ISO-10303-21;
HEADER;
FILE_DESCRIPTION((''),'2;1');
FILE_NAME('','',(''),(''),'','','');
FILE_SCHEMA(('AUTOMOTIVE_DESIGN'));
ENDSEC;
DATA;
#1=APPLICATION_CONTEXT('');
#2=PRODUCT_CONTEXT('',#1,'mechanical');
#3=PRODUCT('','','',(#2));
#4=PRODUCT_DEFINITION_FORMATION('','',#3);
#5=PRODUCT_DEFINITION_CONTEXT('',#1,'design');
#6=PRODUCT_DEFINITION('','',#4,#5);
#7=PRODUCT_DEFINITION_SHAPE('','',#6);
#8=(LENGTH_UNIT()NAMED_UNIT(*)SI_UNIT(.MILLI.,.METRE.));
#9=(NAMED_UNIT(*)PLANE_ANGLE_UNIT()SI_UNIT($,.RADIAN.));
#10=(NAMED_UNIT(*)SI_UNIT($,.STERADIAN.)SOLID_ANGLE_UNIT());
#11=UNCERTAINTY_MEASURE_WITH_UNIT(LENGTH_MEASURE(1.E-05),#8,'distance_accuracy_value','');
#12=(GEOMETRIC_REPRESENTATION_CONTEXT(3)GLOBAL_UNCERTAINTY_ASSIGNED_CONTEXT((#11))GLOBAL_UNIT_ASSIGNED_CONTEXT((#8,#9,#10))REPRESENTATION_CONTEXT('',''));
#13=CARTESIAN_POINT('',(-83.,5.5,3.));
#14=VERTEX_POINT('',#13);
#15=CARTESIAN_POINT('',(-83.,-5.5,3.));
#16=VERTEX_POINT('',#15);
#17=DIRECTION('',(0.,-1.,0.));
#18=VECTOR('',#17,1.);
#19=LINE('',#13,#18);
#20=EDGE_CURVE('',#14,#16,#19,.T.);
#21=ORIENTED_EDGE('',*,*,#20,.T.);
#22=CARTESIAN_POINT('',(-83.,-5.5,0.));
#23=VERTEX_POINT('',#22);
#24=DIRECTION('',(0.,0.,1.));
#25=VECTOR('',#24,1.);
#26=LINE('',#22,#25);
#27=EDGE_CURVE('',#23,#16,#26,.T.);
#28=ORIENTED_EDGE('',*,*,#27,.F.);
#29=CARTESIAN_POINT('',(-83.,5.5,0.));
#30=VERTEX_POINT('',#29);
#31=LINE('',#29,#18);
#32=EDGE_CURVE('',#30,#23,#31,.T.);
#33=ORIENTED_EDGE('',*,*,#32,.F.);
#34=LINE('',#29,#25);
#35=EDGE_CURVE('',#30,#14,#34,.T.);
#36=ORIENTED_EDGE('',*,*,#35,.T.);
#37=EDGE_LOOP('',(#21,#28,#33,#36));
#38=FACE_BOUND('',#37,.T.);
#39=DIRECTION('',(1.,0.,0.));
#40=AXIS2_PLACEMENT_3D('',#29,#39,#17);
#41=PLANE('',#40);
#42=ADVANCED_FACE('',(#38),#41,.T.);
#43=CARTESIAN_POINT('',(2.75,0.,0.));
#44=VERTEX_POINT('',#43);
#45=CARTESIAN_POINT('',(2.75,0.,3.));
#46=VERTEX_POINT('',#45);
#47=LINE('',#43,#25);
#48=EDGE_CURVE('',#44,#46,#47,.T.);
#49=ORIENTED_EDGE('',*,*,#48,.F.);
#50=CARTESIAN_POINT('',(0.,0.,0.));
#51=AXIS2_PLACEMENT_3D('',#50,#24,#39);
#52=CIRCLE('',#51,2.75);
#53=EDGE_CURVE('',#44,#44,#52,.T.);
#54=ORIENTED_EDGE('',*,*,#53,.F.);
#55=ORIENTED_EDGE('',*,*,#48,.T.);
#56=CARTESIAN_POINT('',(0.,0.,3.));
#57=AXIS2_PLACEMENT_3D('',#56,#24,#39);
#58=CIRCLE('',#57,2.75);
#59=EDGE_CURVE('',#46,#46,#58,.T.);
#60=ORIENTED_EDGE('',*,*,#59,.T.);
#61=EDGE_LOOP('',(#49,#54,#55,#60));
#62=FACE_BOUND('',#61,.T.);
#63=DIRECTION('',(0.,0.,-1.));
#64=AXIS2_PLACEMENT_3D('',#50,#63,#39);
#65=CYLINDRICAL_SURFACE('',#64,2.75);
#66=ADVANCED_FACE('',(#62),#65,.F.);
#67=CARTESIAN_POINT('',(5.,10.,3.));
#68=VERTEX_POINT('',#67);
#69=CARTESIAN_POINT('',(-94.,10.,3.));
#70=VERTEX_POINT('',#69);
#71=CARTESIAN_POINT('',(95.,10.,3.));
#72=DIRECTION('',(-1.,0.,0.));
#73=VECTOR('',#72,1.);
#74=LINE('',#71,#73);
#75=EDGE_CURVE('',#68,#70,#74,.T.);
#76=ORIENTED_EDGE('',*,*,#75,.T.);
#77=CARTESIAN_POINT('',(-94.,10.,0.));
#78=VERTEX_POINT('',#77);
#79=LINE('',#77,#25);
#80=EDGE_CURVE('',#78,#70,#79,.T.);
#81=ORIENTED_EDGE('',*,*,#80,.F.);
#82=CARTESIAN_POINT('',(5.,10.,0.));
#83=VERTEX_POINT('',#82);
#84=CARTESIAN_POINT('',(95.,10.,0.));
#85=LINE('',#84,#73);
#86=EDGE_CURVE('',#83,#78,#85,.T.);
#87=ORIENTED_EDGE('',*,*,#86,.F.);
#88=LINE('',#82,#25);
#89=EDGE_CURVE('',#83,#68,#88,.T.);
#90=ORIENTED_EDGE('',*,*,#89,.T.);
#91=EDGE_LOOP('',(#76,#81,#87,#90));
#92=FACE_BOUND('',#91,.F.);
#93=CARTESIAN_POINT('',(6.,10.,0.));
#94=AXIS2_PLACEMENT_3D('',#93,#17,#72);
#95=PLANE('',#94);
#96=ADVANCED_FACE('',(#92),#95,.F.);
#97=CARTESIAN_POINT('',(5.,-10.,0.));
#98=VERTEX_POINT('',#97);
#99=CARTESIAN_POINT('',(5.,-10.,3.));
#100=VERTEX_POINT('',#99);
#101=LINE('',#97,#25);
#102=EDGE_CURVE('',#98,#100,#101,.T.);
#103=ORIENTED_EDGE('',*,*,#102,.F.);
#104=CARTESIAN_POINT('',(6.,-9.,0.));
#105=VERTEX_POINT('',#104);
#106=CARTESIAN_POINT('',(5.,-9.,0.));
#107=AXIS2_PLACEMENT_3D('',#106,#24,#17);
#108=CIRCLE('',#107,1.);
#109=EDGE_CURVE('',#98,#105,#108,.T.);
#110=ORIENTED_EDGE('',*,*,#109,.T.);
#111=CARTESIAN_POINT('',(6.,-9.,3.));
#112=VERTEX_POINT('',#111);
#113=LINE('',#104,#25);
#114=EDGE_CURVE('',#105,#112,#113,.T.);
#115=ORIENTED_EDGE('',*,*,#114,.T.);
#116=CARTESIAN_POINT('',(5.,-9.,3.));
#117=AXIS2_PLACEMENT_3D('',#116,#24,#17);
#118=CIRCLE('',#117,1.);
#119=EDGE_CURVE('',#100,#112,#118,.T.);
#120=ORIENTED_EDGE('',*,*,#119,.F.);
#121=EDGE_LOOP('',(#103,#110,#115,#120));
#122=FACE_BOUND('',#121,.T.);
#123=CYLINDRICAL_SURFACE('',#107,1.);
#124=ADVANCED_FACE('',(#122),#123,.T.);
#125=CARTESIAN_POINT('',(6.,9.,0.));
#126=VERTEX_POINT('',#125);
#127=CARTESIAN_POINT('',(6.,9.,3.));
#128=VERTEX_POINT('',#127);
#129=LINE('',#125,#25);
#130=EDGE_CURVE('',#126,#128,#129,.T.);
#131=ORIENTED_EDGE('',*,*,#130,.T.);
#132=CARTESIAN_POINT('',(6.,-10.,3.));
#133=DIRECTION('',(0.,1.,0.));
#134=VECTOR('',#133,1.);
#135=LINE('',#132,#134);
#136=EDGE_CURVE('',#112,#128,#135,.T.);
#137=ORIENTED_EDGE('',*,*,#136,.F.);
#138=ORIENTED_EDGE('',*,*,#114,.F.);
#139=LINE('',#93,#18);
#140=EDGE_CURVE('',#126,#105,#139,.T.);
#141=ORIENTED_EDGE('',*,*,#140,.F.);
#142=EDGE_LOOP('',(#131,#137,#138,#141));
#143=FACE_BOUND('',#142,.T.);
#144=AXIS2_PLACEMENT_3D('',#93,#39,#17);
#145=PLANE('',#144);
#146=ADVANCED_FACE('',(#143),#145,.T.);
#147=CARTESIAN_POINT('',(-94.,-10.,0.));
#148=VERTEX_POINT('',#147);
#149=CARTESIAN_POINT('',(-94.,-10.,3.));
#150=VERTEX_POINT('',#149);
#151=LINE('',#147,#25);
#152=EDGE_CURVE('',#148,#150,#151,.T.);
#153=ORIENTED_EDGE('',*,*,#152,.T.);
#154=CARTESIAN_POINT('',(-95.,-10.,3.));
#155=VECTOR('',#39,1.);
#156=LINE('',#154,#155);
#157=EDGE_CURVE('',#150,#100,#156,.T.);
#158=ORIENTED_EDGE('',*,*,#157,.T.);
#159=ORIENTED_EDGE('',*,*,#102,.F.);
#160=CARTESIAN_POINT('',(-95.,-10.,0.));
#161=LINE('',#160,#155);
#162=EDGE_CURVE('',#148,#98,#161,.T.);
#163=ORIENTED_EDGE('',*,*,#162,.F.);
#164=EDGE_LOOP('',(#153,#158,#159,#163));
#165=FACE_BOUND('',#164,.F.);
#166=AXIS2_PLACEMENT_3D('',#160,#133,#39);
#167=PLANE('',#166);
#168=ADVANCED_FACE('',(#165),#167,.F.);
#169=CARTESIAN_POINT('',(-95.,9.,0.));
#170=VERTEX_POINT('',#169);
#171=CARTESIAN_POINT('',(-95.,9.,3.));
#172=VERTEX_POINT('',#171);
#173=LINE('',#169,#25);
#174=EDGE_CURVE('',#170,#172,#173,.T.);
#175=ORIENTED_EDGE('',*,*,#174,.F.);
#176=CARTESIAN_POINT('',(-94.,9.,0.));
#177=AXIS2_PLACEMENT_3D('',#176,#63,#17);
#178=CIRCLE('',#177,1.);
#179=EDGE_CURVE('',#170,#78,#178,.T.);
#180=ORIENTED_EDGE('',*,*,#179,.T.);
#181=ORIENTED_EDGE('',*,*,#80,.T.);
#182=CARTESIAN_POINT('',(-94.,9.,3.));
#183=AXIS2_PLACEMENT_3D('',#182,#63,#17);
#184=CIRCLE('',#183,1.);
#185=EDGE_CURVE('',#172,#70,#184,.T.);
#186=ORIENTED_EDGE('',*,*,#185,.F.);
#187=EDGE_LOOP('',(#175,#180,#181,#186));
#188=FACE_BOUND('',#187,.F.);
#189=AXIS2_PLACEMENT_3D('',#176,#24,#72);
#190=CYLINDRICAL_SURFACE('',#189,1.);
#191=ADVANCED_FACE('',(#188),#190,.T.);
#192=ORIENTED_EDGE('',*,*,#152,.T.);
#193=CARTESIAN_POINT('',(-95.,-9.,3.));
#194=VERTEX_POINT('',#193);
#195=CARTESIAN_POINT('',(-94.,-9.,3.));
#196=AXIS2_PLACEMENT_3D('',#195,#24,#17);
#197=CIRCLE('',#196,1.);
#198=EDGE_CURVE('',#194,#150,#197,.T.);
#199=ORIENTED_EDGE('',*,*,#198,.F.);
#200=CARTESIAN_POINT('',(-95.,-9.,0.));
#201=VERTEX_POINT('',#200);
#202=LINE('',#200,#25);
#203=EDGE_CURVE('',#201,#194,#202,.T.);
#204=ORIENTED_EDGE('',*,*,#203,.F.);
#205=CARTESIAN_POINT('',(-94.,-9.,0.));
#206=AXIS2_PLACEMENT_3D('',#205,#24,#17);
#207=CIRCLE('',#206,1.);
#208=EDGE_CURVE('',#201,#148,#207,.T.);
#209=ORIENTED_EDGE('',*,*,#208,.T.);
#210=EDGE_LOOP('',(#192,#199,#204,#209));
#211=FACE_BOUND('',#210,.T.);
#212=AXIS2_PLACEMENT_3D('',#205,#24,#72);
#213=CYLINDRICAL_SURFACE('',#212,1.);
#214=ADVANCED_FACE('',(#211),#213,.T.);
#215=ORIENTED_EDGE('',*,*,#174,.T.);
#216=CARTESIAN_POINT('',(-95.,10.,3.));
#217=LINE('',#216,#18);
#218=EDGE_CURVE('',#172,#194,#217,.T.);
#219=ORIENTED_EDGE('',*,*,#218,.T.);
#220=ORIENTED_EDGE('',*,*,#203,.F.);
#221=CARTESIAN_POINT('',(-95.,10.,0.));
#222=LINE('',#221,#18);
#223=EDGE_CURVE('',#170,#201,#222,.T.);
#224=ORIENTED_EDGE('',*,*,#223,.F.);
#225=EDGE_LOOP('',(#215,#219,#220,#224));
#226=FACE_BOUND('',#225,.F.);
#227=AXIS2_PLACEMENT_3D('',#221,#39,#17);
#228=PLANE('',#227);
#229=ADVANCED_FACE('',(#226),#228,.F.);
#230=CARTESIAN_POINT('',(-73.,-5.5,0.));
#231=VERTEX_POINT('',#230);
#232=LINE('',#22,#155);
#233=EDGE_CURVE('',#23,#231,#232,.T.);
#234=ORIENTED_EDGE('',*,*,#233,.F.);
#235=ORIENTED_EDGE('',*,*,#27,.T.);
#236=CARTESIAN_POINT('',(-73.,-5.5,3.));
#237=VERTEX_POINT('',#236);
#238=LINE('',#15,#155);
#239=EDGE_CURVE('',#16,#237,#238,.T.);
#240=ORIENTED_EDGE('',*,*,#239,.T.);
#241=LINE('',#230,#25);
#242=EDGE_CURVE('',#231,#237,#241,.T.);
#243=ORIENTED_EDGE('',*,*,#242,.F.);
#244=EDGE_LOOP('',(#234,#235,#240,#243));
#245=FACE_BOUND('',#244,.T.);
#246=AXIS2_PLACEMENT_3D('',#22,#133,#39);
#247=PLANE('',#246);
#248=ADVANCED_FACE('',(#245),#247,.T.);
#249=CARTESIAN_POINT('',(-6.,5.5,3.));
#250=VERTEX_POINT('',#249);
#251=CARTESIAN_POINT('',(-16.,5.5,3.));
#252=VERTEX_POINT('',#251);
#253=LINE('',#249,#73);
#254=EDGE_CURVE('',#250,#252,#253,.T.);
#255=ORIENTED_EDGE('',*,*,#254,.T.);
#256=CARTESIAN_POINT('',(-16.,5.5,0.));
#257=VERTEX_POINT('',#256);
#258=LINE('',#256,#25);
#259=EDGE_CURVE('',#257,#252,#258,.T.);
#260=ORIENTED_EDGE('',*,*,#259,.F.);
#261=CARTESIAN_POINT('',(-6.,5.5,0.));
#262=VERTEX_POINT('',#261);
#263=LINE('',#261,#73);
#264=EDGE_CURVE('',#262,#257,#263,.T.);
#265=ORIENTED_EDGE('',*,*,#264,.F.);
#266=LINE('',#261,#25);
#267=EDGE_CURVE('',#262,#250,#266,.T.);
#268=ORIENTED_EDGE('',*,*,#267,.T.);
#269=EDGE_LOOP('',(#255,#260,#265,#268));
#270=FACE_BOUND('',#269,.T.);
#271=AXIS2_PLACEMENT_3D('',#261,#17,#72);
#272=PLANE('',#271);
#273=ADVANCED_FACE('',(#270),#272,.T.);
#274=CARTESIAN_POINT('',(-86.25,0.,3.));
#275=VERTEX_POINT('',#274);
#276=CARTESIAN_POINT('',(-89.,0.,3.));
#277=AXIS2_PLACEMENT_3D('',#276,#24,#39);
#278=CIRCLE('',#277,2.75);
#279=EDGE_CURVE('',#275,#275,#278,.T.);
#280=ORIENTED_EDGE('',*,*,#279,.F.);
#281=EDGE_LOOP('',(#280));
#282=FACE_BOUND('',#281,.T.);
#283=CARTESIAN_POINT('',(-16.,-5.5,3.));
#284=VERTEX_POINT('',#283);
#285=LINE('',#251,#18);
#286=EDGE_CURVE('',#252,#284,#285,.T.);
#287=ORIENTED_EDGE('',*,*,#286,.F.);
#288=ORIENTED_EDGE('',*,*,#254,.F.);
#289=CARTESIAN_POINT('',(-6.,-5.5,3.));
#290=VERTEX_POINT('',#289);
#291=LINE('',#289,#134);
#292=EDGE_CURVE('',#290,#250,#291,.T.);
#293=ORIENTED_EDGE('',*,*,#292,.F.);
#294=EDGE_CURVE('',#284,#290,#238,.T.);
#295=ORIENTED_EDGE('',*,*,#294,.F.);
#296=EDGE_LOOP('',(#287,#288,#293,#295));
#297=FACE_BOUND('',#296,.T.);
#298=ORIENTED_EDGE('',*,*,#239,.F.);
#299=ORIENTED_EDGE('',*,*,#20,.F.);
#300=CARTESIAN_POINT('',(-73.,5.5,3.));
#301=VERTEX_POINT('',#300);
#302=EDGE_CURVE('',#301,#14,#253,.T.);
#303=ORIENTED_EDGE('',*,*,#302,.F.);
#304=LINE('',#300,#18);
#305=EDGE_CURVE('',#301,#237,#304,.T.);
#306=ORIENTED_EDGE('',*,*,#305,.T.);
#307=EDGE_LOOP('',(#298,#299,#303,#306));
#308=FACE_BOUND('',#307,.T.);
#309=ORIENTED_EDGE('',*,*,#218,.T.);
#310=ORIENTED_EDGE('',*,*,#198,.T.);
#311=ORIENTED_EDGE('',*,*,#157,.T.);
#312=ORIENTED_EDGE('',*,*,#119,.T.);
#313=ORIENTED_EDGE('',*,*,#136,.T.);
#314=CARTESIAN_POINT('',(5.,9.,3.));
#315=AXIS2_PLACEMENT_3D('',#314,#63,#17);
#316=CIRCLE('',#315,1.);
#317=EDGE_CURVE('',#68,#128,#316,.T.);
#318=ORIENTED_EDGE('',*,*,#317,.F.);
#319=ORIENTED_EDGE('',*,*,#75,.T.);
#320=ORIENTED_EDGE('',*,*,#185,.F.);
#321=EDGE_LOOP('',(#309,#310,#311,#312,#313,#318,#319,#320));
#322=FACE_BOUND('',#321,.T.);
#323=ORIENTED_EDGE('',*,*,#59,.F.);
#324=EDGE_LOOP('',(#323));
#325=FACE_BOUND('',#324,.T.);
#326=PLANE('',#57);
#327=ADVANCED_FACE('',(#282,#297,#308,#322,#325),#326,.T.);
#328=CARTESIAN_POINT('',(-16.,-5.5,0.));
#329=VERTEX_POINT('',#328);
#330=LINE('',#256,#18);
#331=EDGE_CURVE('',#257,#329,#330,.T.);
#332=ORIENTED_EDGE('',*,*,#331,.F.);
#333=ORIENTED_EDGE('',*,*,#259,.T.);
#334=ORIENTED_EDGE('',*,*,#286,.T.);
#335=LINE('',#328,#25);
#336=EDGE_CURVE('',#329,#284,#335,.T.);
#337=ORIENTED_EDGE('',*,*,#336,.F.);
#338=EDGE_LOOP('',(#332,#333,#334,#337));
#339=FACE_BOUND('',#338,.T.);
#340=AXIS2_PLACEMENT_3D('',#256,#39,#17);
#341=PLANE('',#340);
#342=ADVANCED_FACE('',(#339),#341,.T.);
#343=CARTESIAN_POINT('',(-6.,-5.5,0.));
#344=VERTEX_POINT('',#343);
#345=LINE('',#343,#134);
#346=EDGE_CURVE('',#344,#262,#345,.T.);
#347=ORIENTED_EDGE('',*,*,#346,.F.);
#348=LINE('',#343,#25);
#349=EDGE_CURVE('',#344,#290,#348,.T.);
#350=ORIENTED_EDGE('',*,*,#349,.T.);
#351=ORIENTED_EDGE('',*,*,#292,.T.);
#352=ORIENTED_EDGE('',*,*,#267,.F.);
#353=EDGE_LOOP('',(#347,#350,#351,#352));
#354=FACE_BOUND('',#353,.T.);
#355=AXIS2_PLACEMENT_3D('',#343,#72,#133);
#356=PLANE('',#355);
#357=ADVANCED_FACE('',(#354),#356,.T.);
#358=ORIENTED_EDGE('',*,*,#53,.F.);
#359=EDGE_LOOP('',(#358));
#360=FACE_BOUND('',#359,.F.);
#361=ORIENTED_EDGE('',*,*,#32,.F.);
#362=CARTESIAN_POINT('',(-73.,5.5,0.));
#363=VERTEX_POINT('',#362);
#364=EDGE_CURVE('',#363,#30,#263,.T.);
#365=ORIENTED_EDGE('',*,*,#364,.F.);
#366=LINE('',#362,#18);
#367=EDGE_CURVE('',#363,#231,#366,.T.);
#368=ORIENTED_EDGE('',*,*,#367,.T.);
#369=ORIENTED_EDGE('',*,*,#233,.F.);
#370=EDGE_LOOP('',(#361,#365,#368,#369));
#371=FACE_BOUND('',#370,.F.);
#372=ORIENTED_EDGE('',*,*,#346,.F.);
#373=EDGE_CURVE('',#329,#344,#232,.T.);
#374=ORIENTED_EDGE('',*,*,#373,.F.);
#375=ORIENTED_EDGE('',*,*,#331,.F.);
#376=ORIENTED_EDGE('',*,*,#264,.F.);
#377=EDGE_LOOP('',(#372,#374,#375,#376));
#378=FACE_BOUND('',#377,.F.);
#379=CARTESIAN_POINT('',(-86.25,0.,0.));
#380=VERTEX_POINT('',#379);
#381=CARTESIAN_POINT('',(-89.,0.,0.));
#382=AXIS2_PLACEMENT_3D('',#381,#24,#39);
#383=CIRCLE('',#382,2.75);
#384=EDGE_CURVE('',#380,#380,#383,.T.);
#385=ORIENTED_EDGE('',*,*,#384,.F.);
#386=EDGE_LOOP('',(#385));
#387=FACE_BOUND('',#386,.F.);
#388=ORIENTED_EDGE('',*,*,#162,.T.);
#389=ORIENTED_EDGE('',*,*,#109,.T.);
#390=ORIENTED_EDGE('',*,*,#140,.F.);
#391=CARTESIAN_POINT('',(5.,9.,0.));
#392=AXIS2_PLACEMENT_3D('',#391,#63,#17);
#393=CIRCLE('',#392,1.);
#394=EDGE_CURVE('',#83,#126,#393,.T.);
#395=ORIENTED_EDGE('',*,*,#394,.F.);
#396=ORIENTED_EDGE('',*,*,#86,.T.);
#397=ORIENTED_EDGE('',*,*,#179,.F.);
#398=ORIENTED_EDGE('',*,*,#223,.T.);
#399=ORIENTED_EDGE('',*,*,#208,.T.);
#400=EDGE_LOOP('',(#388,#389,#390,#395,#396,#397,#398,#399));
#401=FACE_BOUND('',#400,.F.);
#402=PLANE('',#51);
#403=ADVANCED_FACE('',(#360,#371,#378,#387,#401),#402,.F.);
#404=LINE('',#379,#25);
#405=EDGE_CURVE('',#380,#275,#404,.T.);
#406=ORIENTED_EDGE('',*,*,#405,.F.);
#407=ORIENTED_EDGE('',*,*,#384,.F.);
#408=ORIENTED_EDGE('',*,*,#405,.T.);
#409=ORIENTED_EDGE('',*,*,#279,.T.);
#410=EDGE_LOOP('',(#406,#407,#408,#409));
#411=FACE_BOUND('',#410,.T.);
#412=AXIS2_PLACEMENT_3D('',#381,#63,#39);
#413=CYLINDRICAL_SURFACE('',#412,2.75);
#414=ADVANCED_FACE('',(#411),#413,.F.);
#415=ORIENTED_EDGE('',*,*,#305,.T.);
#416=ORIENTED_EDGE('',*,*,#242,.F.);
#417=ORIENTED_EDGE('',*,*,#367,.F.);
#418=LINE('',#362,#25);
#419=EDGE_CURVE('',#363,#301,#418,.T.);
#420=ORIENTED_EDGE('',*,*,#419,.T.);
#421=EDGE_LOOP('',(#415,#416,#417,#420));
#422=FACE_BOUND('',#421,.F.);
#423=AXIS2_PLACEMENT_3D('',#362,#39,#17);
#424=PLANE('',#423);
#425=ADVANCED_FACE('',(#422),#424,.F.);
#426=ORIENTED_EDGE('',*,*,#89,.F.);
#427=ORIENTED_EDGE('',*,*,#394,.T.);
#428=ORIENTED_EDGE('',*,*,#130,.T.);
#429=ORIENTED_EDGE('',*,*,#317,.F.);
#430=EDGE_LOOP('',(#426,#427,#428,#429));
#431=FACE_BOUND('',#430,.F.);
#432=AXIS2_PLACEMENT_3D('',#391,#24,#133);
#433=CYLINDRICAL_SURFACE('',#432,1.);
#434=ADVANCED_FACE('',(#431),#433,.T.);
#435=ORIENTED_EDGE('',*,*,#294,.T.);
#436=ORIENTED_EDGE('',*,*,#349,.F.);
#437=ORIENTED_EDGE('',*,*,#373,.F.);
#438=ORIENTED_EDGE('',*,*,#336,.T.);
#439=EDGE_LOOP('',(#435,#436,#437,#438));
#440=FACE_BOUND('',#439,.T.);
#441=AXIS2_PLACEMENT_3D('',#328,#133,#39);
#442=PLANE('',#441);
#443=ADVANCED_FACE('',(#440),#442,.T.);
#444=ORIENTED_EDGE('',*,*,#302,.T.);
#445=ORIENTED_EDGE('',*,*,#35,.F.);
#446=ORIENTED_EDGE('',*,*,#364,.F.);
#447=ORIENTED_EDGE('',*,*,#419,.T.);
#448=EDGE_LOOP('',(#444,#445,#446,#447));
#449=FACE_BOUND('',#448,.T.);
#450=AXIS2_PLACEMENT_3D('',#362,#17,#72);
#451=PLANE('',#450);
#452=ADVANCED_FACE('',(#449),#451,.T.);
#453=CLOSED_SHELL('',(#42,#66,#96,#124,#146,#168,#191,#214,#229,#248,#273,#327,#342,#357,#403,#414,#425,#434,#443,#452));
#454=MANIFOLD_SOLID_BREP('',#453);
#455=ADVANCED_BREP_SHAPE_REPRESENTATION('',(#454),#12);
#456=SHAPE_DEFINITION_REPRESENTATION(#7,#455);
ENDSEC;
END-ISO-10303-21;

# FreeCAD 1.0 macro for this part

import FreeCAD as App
import Part
import Sketcher
Q = App.Units.Quantity


def edges_at(feature, points):
    """Names of the edges that pass closest to the given points."""
    edges = feature.Shape.Edges
    near = lambda p: min(range(len(edges)), key=lambda i: edges[i].distToShape(Part.Vertex(*p))[0])
    return sorted({f"Edge{near(p) + 1}" for p in points})


def add_polygon(sketch, points):
    """Adds a closed chain of lines whose ends are joined by coincident constraints."""
    first, n = sketch.GeometryCount, len(points)
    for a, b in zip(points, points[1:] + points[:1]):
        sketch.addGeometry(Part.LineSegment(App.Vector(*a, 0), App.Vector(*b, 0)), False)
    for i in range(n):
        sketch.addConstraint(Sketcher.Constraint("Coincident", first + i, 2, first + (i + 1) % n, 1))

doc = App.newDocument("Part")
body = doc.addObject("PartDesign::Body", "Body")

# Sketch on XY plane
sketch1 = body.newObject("Sketcher::SketchObject", "Sketch")
sketch1.AttachmentSupport = (doc.getObject("XY_Plane"), [""])
sketch1.MapMode = "FlatFace"
add_polygon(sketch1, [(-95, 10), (-95, -10), (6, -10), (6, 10)])  # lines 0-3
sketch1.addGeometry(Part.Circle(App.Vector(-89, 0, 0), App.Vector(0, 0, 1), 2.8), False)  # 4
add_polygon(sketch1, [(-73, -5.5), (-83, -5.5), (-83, 5.5), (-73, 5.5)])  # lines 5-8
add_polygon(sketch1, [(-6, -5.5), (-16, -5.5), (-16, 5.5), (-6, 5.5)])  # lines 9-12
sketch1.addGeometry(Part.Circle(App.Vector(0, 0, 0), App.Vector(0, 0, 1), 2.8), False)  # 13
sketch1.addConstraint([
    Sketcher.Constraint("Vertical", 0),
    Sketcher.Constraint("Horizontal", 1),
    Sketcher.Constraint("Vertical", 2),
    Sketcher.Constraint("Horizontal", 3),
    Sketcher.Constraint("Horizontal", 5),
    Sketcher.Constraint("Vertical", 6),
    Sketcher.Constraint("Horizontal", 7),
    Sketcher.Constraint("Vertical", 8),
    Sketcher.Constraint("Horizontal", 9),
    Sketcher.Constraint("Vertical", 10),
    Sketcher.Constraint("Horizontal", 11),
    Sketcher.Constraint("Vertical", 12),
    Sketcher.Constraint("Coincident", 13, 3, -1, 1),
    Sketcher.Constraint("Equal", 4, 13),
    Sketcher.Constraint("PointOnObject", 4, 3, -1),
    Sketcher.Constraint("Horizontal", 8, 2, 9, 2),
    Sketcher.Constraint("Horizontal", 7, 2, 10, 2),
    Sketcher.Constraint("Equal", 7, 9),
    Sketcher.Constraint("Diameter", 4, Q("5.5 mm")),
    Sketcher.Constraint("DistanceX", 5, 2, 5, 1, Q("10 mm")),
    Sketcher.Constraint("DistanceY", 0, 2, 0, 1, Q("20 mm")),
    Sketcher.Constraint("DistanceY", 6, 1, 6, 2, Q("11 mm")),
    Sketcher.Constraint("DistanceY", 0, 2, -1, 1, Q("10 mm")),
    Sketcher.Constraint("DistanceX", -1, 1, 1, 2, Q("6 mm")),
    Sketcher.Constraint("DistanceX", 11, 2, -1, 1, Q("6 mm")),
    Sketcher.Constraint("DistanceX", 0, 2, 4, 3, Q("6 mm")),
    Sketcher.Constraint("DistanceX", 4, 3, 5, 2, Q("6 mm")),
    Sketcher.Constraint("DistanceY", 5, 2, -1, 1, Q("5.5 mm")),
    Sketcher.Constraint("DistanceX", 1, 1, 1, 2, Q("101 mm")),
])
pad1 = body.newObject("PartDesign::Pad", "Pad")
pad1.Profile = sketch1
pad1.Length = 3
doc.recompute()

fillet = body.newObject("PartDesign::Fillet", "Fillet")
fillet.Base = (pad1, edges_at(pad1, [
    (-95, -10, 1.5),
    (-95, 10, 1.5),
    (6, 10, 1.5),
    (6, -10, 1.5),
]))
fillet.Radius = 1

doc.recompute()
